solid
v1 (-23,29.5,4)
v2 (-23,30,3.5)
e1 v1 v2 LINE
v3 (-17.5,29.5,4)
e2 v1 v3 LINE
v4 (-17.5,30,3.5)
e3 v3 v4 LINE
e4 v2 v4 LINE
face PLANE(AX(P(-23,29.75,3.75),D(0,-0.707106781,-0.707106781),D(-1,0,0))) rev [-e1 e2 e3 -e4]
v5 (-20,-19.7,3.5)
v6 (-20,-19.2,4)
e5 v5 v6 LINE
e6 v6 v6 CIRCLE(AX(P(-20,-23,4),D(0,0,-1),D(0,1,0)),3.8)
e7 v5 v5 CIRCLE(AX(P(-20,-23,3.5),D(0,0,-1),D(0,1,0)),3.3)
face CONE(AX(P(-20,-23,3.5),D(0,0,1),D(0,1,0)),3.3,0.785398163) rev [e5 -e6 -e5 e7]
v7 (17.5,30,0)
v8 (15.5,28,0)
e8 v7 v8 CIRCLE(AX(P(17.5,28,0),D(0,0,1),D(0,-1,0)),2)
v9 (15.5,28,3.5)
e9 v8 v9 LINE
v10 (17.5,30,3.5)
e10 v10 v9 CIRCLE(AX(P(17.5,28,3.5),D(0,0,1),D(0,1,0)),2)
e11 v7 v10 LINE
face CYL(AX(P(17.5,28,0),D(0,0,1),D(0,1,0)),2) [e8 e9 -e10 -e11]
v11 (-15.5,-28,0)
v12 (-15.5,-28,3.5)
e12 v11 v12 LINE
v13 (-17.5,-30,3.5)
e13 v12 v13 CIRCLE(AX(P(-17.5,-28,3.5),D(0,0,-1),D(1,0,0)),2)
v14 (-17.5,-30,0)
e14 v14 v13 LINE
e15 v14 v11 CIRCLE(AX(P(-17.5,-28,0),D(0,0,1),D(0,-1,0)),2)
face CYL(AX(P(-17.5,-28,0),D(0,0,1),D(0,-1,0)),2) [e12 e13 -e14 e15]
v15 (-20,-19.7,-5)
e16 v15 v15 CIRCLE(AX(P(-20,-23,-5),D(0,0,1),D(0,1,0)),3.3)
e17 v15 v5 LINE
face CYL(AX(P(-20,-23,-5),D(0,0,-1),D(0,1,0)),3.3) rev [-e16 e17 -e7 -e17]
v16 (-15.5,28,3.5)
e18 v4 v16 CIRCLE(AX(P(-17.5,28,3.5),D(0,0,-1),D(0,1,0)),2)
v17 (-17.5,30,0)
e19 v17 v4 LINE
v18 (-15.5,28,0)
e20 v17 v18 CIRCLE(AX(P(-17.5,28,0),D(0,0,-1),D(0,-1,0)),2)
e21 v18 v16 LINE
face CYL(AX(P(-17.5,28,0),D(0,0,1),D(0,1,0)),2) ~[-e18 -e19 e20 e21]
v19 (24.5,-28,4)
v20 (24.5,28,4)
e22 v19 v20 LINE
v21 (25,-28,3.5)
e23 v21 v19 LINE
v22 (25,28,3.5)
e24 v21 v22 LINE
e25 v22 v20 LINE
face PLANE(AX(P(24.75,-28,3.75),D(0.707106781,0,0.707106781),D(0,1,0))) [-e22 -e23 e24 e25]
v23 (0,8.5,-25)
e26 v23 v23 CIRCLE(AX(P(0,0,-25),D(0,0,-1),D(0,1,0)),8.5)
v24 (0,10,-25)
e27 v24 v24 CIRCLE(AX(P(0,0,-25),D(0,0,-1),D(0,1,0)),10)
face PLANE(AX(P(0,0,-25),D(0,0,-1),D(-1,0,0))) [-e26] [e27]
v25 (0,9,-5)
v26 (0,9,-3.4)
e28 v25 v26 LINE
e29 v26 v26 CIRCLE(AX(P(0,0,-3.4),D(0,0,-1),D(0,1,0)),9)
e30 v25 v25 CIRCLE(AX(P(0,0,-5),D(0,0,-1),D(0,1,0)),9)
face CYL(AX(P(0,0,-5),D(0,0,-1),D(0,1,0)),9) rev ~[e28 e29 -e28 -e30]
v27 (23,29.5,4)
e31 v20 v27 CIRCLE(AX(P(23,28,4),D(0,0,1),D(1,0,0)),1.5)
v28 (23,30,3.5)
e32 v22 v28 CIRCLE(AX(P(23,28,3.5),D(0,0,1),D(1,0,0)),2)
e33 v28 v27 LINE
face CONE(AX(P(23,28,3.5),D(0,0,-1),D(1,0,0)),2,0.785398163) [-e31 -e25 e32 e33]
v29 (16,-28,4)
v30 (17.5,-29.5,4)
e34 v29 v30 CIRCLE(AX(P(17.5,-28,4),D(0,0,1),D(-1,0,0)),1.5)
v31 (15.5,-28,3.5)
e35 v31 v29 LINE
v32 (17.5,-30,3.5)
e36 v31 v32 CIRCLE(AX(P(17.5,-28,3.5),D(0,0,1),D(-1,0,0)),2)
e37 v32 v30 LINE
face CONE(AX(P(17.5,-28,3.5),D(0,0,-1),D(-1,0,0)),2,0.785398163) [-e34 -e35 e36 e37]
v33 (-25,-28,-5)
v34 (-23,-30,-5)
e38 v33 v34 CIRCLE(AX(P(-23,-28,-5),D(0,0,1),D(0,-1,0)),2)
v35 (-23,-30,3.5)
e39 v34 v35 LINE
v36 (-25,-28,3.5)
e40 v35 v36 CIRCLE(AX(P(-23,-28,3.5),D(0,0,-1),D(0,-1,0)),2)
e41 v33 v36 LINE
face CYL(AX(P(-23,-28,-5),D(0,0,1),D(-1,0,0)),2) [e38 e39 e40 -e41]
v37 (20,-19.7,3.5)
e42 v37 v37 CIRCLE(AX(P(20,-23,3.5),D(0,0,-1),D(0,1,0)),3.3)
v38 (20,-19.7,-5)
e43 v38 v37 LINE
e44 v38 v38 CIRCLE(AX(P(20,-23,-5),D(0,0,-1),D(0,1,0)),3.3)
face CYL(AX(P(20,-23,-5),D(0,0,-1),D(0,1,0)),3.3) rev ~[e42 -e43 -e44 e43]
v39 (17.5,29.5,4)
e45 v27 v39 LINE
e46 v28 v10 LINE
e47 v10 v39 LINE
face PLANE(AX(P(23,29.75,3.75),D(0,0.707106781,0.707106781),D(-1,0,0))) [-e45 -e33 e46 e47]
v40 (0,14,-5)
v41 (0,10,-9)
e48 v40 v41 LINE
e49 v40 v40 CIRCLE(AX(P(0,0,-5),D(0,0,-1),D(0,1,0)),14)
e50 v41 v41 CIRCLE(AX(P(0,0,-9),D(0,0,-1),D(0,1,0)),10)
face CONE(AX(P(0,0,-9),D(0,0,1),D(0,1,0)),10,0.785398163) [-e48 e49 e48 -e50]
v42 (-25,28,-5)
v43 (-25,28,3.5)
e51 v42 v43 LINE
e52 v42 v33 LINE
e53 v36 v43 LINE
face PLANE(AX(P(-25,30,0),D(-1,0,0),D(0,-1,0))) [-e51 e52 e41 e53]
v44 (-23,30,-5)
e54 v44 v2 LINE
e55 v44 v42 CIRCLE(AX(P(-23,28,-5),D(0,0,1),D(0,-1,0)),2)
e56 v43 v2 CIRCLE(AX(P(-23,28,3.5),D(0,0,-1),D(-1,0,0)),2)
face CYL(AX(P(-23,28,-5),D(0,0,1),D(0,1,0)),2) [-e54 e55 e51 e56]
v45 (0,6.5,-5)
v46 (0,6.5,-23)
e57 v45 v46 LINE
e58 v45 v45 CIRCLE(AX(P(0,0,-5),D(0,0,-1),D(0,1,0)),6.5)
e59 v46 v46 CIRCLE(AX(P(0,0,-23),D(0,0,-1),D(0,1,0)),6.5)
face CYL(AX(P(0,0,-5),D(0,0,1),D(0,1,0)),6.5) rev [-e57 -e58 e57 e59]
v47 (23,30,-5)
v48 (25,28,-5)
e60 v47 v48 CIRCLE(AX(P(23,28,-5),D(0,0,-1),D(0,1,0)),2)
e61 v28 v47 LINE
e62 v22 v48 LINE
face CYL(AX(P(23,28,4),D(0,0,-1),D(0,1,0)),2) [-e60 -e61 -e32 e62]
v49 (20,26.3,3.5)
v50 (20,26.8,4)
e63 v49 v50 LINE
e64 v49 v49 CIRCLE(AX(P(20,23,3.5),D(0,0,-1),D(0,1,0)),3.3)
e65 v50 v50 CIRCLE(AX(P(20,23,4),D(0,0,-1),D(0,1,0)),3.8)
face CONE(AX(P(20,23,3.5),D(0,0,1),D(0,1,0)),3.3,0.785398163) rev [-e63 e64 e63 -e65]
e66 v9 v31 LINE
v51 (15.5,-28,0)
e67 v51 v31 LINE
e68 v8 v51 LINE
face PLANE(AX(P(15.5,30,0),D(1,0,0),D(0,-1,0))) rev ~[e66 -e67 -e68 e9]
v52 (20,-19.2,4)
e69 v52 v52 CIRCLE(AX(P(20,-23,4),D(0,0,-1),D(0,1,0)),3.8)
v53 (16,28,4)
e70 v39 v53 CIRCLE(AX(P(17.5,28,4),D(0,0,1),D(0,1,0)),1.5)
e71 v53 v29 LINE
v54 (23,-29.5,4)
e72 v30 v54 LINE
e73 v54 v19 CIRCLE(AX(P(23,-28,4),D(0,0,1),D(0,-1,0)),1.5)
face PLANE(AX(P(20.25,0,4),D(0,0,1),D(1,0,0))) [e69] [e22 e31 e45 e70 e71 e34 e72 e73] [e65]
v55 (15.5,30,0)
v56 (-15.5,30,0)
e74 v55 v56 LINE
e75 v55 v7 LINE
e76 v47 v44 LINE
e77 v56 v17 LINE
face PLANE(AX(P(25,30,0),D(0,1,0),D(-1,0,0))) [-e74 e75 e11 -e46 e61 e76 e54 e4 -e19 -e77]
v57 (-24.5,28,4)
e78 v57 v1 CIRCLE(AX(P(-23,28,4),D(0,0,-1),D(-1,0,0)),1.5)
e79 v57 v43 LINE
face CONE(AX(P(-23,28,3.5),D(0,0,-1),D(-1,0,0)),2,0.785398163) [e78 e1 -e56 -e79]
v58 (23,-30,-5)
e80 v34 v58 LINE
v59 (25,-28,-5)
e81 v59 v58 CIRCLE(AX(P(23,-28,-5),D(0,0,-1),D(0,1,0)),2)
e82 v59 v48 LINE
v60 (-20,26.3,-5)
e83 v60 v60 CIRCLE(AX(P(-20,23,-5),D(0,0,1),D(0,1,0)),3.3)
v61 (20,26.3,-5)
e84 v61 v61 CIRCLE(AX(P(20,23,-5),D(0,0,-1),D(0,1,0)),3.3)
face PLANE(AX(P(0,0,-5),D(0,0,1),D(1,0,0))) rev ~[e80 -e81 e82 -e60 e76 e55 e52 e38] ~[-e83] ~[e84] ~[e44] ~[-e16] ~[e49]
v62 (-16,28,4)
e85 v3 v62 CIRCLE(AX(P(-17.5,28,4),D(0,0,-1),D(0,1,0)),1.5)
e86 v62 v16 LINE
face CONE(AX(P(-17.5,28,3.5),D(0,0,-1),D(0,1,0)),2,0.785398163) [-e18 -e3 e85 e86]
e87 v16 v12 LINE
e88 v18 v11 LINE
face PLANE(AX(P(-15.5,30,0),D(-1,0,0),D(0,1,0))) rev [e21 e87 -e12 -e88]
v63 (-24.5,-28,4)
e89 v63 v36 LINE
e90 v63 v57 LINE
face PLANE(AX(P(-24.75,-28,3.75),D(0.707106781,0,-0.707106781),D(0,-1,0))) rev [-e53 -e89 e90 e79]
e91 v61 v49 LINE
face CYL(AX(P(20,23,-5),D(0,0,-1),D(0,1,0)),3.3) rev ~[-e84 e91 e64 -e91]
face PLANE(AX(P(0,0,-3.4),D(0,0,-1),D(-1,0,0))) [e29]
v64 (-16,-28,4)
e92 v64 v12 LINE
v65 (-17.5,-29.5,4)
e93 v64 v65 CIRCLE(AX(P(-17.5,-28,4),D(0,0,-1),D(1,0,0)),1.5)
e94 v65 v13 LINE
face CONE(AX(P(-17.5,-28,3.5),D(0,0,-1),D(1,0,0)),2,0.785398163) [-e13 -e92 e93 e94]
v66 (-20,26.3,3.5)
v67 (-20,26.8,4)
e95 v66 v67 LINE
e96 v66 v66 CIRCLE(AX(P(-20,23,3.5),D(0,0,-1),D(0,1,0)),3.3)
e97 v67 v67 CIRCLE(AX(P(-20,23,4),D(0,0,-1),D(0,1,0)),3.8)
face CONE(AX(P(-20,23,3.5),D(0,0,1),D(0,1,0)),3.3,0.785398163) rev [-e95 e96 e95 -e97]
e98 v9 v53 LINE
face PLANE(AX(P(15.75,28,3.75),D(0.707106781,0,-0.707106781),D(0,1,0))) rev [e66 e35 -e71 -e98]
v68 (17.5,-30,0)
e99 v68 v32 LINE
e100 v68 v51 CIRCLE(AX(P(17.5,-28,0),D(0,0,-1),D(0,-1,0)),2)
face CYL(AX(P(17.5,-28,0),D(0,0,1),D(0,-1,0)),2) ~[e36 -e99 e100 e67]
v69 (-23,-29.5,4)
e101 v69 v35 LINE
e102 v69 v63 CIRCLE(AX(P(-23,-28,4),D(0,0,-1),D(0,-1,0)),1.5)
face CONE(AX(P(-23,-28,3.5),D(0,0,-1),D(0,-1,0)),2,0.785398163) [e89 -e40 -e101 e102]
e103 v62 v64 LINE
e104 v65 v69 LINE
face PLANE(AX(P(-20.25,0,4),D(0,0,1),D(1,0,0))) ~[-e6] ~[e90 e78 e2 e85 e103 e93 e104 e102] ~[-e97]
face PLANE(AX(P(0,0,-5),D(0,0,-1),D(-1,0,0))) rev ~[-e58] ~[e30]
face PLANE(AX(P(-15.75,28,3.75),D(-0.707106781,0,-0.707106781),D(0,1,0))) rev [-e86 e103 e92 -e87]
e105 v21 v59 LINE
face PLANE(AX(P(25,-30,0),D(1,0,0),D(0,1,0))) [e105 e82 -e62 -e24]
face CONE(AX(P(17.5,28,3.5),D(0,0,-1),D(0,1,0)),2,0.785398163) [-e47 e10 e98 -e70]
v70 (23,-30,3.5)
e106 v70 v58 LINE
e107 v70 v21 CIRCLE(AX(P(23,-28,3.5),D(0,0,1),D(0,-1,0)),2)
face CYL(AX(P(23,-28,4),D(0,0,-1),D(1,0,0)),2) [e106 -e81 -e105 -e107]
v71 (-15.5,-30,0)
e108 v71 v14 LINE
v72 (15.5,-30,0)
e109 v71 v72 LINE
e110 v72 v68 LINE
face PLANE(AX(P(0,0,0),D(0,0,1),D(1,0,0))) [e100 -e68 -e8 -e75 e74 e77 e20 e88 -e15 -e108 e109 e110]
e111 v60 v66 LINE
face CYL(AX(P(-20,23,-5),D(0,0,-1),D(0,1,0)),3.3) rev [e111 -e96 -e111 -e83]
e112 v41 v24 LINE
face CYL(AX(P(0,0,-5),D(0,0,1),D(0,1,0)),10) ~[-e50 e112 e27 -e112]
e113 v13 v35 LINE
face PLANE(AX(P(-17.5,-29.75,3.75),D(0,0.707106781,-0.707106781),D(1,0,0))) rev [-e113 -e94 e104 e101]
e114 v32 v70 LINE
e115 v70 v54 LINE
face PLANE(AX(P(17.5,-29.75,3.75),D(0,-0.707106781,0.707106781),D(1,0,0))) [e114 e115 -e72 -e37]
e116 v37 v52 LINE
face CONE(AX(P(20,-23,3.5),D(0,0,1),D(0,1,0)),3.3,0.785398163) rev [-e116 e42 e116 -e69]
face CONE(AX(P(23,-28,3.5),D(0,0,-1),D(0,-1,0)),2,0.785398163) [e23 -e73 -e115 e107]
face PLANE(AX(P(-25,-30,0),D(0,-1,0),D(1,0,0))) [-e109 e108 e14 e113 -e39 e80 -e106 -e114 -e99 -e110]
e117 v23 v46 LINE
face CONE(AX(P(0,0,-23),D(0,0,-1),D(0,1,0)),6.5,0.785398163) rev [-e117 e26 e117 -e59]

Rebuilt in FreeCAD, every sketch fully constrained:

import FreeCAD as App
import Part
import Sketcher
from FreeCAD import Vector
Q = App.Units.Quantity


def edges_at(feature, points):
    """Names of the edges that pass closest to the given points."""
    edges = feature.Shape.Edges
    near = lambda p: min(range(len(edges)), key=lambda i: edges[i].distToShape(Part.Vertex(*p))[0])
    return sorted({f"Edge{near(p) + 1}" for p in points})


def add_polygon(sketch, points):
    """Adds a closed chain of lines whose ends are joined by coincident constraints."""
    first, n = sketch.GeometryCount, len(points)
    for a, b in zip(points, points[1:] + points[:1]):
        sketch.addGeometry(Part.LineSegment(App.Vector(*a, 0), App.Vector(*b, 0)), False)
    for i in range(n):
        sketch.addConstraint(Sketcher.Constraint("Coincident", first + i, 2, first + (i + 1) % n, 1))

doc = App.newDocument("Part")
body = doc.addObject("PartDesign::Body", "Body")

# Sketch on XY plane
sketch1 = body.newObject("Sketcher::SketchObject", "Sketch")
sketch1.AttachmentSupport = (doc.getObject("XY_Plane"), [""])
sketch1.MapMode = "FlatFace"
add_polygon(sketch1, [(25, -30), (25, 30), (-25, 30), (-25, -30)])  # lines 0-3
sketch1.addConstraint(Sketcher.Constraint("Vertical", 0))
sketch1.addConstraint(Sketcher.Constraint("Horizontal", 1))
sketch1.addConstraint(Sketcher.Constraint("Vertical", 2))
sketch1.addConstraint(Sketcher.Constraint("Horizontal", 3))
sketch1.addConstraint(Sketcher.Constraint("Symmetric", 0, 2, 2, 2, -1, 1))
sketch1.addConstraint(Sketcher.Constraint("DistanceX", 1, 2, 1, 1, Q("50 mm")))
sketch1.addConstraint(Sketcher.Constraint("DistanceY", 0, 1, 0, 2, Q("60 mm")))
pad1 = body.newObject("PartDesign::Pad", "Pad")
pad1.Profile = sketch1
pad1.Length = 5
pad1.Reversed = True

# Sketch on XY plane
sketch2 = body.newObject("Sketcher::SketchObject", "Sketch001")
sketch2.AttachmentSupport = (doc.getObject("XY_Plane"), [""])
sketch2.MapMode = "FlatFace"
add_polygon(sketch2, [(25, 30), (16, 30), (16, -30), (25, -30)])  # lines 0-3
sketch2.addConstraint(Sketcher.Constraint("Horizontal", 0))
sketch2.addConstraint(Sketcher.Constraint("Vertical", 1))
sketch2.addConstraint(Sketcher.Constraint("Horizontal", 2))
sketch2.addConstraint(Sketcher.Constraint("Vertical", 3))
sketch2.addConstraint(Sketcher.Constraint("DistanceY", 1, 2, 1, 1, Q("60 mm")))
sketch2.addConstraint(Sketcher.Constraint("DistanceX", 0, 2, 0, 1, Q("9.5 mm")))
sketch2.addConstraint(Sketcher.Constraint("DistanceY", -1, 1, 0, 2, Q("30 mm")))
sketch2.addConstraint(Sketcher.Constraint("DistanceX", -1, 1, 2, 2, Q("25 mm")))
pad2 = body.newObject("PartDesign::Pad", "Pad001")
pad2.Profile = sketch2
pad2.Length = 4
doc.recompute()

mirrored = body.newObject("PartDesign::Mirrored", "Mirrored")
mirrored.Originals = [pad2]
mirrored.MirrorPlane = (doc.getObject("YZ_Plane"), [""])
body.Tip = mirrored

# Sketch on XY plane
sketch3 = body.newObject("Sketcher::SketchObject", "Sketch002")
sketch3.AttachmentSupport = (doc.getObject("XY_Plane"), [""])
sketch3.MapMode = "FlatFace"
sketch3.AttachmentOffset = App.Placement(Vector(0, 0, -5), App.Rotation())
sketch3.addGeometry(Part.Circle(Vector(20, -23, 0), Vector(0, 0, 1), 3.3), False)
sketch3.addGeometry(Part.Circle(Vector(20, 23, 0), Vector(0, 0, 1), 3.3), False)
sketch3.addConstraint(Sketcher.Constraint("Equal", 0, 1))
sketch3.addConstraint(Sketcher.Constraint("Symmetric", 0, 3, 1, 3, -1))
sketch3.addConstraint(Sketcher.Constraint("Diameter", 0, Q("6.6 mm")))
sketch3.addConstraint(Sketcher.Constraint("DistanceX", -1, 1, 0, 3, Q("20 mm")))
sketch3.addConstraint(Sketcher.Constraint("DistanceY", 0, 3, -1, 1, Q("23 mm")))
pocket1 = body.newObject("PartDesign::Pocket", "Pocket")
pocket1.Profile = sketch3
pocket1.Length = 38
pocket1.Reversed = True

# Sketch on XY plane
sketch4 = body.newObject("Sketcher::SketchObject", "Sketch003")
sketch4.AttachmentSupport = (doc.getObject("XY_Plane"), [""])
sketch4.MapMode = "FlatFace"
sketch4.AttachmentOffset = App.Placement(Vector(0, 0, -5), App.Rotation())
sketch4.addGeometry(Part.Circle(Vector(0, 0, 0), Vector(0, 0, 1), 9), False)
sketch4.addConstraint(Sketcher.Constraint("Coincident", 0, 3, -1, 1))
sketch4.addConstraint(Sketcher.Constraint("Diameter", 0, Q("18 mm")))
pocket2 = body.newObject("PartDesign::Pocket", "Pocket001")
pocket2.Profile = sketch4
pocket2.Length = 1.6
pocket2.Reversed = True
doc.recompute()

mirrored2 = body.newObject("PartDesign::Mirrored", "Mirrored001")
mirrored2.Originals = [pocket1]
mirrored2.MirrorPlane = (doc.getObject("YZ_Plane"), [""])
body.Tip = mirrored2

# Sketch on XY plane
sketch5 = body.newObject("Sketcher::SketchObject", "Sketch004")
sketch5.AttachmentSupport = (doc.getObject("XY_Plane"), [""])
sketch5.MapMode = "FlatFace"
sketch5.AttachmentOffset = App.Placement(Vector(0, 0, -5), App.Rotation())
sketch5.addGeometry(Part.Circle(Vector(0, 0, 0), Vector(0, 0, 1), 10), False)
sketch5.addGeometry(Part.Circle(Vector(0, 0, 0), Vector(0, 0, 1), 6), False)
sketch5.addConstraint(Sketcher.Constraint("Coincident", 0, 3, -1, 1))
sketch5.addConstraint(Sketcher.Constraint("Coincident", 1, 3, -1, 1))
sketch5.addConstraint(Sketcher.Constraint("Diameter", 0, Q("20 mm")))
sketch5.addConstraint(Sketcher.Constraint("Diameter", 1, Q("13 mm")))
pad3 = body.newObject("PartDesign::Pad", "Pad002")
pad3.Profile = sketch5
pad3.Length = 20
pad3.Reversed = True
doc.recompute()

chamfer = body.newObject("PartDesign::Chamfer", "Chamfer")
chamfer.Base = (pad3, edges_at(pad3, [(0, -10, -5)]))
chamfer.Size = 4
doc.recompute()

chamfer2 = body.newObject("PartDesign::Chamfer", "Chamfer001")
chamfer2.Base = (chamfer, edges_at(chamfer, [(0, -6.5, -25)]))
chamfer2.Size = 2
doc.recompute()

fillet = body.newObject("PartDesign::Fillet", "Fillet")
fillet.Base = (chamfer2, edges_at(chamfer2, [
    (-25, -30, -0.5),
    (-15.5, -30, 2),
    (15.5, -30, 2),
    (25, -30, -0.5),
    (-25, 30, -0.5),
    (25, 30, -0.5),
    (15.5, 30, 2),
    (-15.5, 30, 2),
]))
fillet.Radius = 2
doc.recompute()

chamfer3 = body.newObject("PartDesign::Chamfer", "Chamfer002")
chamfer3.Base = (fillet, edges_at(fillet, [
    (16.7, -23, 4),
    (16.7, 23, 4),
    (20.25, 30, 4),
    (16.086, 29.414, 4),
    (15.5, 0, 4),
    (16.086, -29.414, 4),
    (20.25, -30, 4),
    (24.414, -29.414, 4),
    (25, 0, 4),
    (24.414, 29.414, 4),
    (-16.7, 23, 4),
    (-16.7, -23, 4),
    (-15.5, 0, 4),
    (-16.086, 29.414, 4),
    (-20.25, 30, 4),
    (-24.414, 29.414, 4),
    (-25, 0, 4),
    (-24.414, -29.414, 4),
    (-20.25, -30, 4),
    (-16.086, -29.414, 4),
]))
chamfer3.Size = 0.5

doc.recompute()
